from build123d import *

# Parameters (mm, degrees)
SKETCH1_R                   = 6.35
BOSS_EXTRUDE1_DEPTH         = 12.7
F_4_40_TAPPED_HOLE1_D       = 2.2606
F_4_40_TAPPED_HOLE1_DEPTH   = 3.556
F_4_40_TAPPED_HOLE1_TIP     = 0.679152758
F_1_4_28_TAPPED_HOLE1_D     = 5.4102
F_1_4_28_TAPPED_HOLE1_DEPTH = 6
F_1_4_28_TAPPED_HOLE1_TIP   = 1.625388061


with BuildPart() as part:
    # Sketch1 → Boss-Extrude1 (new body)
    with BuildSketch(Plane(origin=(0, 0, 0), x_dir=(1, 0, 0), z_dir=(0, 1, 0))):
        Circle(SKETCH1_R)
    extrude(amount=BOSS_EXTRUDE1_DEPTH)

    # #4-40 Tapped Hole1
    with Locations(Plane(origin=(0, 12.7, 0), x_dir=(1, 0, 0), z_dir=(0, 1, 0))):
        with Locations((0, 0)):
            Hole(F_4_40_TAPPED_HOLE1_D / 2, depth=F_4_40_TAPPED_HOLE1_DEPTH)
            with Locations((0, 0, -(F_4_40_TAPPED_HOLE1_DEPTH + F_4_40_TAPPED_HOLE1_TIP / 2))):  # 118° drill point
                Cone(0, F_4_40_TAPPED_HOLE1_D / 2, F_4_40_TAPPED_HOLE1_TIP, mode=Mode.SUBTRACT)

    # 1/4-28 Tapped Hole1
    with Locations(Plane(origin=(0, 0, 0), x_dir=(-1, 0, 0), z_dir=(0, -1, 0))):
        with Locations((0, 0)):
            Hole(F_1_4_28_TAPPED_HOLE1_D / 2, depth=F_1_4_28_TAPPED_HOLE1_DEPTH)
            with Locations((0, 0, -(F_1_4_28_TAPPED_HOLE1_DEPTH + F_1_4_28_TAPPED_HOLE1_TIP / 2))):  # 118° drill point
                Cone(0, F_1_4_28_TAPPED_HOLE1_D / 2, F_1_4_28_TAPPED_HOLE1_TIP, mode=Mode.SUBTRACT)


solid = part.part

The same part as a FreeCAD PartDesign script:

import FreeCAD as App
import Part
import Sketcher

V = App.Vector
Q = App.Units.Quantity

doc = App.newDocument("Part")
body = doc.addObject("PartDesign::Body", "Body")

sketch1 = doc.addObject("Sketcher::SketchObject", "Sketch")
body.addObject(sketch1)
sketch1.AttachmentSupport = (doc.XZ_Plane, [""])
sketch1.MapMode = "FlatFace"
sketch1.addGeometry(Part.Circle(V(0, 0, 0), V(0, 0, 1), 6), False)
sketch1.addConstraint(Sketcher.Constraint("Coincident", 0, 3, -1, 1))
sketch1.addConstraint(Sketcher.Constraint("Diameter", 0, Q("0.5 in")))
pad1 = doc.addObject("PartDesign::Pad", "Pad")
body.addObject(pad1)
pad1.Profile = sketch1
pad1.Length = Q("0.5 in")
pad1.Reversed = True

sketch2 = doc.addObject("Sketcher::SketchObject", "Sketch001")
body.addObject(sketch2)
sketch2.AttachmentSupport = (doc.XZ_Plane, [""])
sketch2.MapMode = "FlatFace"
sketch2.AttachmentOffset = App.Placement(V(0, 0, -0.5 * 25.4), App.Rotation())
sketch2.addGeometry(Part.Circle(V(0, 0, 0), V(0, 0, 1), 1.1), False)
sketch2.addConstraint(Sketcher.Constraint("Coincident", 0, 3, -1, 1))
sketch2.addConstraint(Sketcher.Constraint("Diameter", 0, Q("0.089 in")))
doc.recompute()
hole = doc.addObject("PartDesign::Hole", "Hole")
body.addObject(hole)
hole.Profile = sketch2
hole.ThreadType = "None"
hole.Diameter = Q("0.089 in")
hole.DepthType = "Dimension"
hole.Depth = Q("0.14 in")
hole.DrillPoint = "Angled"
hole.DrillPointAngle = 118
hole.Reversed = True

sketch3 = doc.addObject("Sketcher::SketchObject", "Sketch002")
body.addObject(sketch3)
sketch3.AttachmentSupport = (doc.XZ_Plane, [""])
sketch3.MapMode = "FlatFace"
sketch3.addGeometry(Part.Circle(V(0, 0, 0), V(0, 0, 1), 2.7), False)
sketch3.addConstraint(Sketcher.Constraint("Coincident", 0, 3, -1, 1))
sketch3.addConstraint(Sketcher.Constraint("Diameter", 0, Q("0.213 in")))
doc.recompute()
hole2 = doc.addObject("PartDesign::Hole", "Hole001")
body.addObject(hole2)
hole2.Profile = sketch3
hole2.ThreadType = "None"
hole2.Diameter = Q("0.213 in")
hole2.DepthType = "Dimension"
hole2.Depth = 6
hole2.DrillPoint = "Angled"
hole2.DrillPointAngle = 118

doc.recompute()
